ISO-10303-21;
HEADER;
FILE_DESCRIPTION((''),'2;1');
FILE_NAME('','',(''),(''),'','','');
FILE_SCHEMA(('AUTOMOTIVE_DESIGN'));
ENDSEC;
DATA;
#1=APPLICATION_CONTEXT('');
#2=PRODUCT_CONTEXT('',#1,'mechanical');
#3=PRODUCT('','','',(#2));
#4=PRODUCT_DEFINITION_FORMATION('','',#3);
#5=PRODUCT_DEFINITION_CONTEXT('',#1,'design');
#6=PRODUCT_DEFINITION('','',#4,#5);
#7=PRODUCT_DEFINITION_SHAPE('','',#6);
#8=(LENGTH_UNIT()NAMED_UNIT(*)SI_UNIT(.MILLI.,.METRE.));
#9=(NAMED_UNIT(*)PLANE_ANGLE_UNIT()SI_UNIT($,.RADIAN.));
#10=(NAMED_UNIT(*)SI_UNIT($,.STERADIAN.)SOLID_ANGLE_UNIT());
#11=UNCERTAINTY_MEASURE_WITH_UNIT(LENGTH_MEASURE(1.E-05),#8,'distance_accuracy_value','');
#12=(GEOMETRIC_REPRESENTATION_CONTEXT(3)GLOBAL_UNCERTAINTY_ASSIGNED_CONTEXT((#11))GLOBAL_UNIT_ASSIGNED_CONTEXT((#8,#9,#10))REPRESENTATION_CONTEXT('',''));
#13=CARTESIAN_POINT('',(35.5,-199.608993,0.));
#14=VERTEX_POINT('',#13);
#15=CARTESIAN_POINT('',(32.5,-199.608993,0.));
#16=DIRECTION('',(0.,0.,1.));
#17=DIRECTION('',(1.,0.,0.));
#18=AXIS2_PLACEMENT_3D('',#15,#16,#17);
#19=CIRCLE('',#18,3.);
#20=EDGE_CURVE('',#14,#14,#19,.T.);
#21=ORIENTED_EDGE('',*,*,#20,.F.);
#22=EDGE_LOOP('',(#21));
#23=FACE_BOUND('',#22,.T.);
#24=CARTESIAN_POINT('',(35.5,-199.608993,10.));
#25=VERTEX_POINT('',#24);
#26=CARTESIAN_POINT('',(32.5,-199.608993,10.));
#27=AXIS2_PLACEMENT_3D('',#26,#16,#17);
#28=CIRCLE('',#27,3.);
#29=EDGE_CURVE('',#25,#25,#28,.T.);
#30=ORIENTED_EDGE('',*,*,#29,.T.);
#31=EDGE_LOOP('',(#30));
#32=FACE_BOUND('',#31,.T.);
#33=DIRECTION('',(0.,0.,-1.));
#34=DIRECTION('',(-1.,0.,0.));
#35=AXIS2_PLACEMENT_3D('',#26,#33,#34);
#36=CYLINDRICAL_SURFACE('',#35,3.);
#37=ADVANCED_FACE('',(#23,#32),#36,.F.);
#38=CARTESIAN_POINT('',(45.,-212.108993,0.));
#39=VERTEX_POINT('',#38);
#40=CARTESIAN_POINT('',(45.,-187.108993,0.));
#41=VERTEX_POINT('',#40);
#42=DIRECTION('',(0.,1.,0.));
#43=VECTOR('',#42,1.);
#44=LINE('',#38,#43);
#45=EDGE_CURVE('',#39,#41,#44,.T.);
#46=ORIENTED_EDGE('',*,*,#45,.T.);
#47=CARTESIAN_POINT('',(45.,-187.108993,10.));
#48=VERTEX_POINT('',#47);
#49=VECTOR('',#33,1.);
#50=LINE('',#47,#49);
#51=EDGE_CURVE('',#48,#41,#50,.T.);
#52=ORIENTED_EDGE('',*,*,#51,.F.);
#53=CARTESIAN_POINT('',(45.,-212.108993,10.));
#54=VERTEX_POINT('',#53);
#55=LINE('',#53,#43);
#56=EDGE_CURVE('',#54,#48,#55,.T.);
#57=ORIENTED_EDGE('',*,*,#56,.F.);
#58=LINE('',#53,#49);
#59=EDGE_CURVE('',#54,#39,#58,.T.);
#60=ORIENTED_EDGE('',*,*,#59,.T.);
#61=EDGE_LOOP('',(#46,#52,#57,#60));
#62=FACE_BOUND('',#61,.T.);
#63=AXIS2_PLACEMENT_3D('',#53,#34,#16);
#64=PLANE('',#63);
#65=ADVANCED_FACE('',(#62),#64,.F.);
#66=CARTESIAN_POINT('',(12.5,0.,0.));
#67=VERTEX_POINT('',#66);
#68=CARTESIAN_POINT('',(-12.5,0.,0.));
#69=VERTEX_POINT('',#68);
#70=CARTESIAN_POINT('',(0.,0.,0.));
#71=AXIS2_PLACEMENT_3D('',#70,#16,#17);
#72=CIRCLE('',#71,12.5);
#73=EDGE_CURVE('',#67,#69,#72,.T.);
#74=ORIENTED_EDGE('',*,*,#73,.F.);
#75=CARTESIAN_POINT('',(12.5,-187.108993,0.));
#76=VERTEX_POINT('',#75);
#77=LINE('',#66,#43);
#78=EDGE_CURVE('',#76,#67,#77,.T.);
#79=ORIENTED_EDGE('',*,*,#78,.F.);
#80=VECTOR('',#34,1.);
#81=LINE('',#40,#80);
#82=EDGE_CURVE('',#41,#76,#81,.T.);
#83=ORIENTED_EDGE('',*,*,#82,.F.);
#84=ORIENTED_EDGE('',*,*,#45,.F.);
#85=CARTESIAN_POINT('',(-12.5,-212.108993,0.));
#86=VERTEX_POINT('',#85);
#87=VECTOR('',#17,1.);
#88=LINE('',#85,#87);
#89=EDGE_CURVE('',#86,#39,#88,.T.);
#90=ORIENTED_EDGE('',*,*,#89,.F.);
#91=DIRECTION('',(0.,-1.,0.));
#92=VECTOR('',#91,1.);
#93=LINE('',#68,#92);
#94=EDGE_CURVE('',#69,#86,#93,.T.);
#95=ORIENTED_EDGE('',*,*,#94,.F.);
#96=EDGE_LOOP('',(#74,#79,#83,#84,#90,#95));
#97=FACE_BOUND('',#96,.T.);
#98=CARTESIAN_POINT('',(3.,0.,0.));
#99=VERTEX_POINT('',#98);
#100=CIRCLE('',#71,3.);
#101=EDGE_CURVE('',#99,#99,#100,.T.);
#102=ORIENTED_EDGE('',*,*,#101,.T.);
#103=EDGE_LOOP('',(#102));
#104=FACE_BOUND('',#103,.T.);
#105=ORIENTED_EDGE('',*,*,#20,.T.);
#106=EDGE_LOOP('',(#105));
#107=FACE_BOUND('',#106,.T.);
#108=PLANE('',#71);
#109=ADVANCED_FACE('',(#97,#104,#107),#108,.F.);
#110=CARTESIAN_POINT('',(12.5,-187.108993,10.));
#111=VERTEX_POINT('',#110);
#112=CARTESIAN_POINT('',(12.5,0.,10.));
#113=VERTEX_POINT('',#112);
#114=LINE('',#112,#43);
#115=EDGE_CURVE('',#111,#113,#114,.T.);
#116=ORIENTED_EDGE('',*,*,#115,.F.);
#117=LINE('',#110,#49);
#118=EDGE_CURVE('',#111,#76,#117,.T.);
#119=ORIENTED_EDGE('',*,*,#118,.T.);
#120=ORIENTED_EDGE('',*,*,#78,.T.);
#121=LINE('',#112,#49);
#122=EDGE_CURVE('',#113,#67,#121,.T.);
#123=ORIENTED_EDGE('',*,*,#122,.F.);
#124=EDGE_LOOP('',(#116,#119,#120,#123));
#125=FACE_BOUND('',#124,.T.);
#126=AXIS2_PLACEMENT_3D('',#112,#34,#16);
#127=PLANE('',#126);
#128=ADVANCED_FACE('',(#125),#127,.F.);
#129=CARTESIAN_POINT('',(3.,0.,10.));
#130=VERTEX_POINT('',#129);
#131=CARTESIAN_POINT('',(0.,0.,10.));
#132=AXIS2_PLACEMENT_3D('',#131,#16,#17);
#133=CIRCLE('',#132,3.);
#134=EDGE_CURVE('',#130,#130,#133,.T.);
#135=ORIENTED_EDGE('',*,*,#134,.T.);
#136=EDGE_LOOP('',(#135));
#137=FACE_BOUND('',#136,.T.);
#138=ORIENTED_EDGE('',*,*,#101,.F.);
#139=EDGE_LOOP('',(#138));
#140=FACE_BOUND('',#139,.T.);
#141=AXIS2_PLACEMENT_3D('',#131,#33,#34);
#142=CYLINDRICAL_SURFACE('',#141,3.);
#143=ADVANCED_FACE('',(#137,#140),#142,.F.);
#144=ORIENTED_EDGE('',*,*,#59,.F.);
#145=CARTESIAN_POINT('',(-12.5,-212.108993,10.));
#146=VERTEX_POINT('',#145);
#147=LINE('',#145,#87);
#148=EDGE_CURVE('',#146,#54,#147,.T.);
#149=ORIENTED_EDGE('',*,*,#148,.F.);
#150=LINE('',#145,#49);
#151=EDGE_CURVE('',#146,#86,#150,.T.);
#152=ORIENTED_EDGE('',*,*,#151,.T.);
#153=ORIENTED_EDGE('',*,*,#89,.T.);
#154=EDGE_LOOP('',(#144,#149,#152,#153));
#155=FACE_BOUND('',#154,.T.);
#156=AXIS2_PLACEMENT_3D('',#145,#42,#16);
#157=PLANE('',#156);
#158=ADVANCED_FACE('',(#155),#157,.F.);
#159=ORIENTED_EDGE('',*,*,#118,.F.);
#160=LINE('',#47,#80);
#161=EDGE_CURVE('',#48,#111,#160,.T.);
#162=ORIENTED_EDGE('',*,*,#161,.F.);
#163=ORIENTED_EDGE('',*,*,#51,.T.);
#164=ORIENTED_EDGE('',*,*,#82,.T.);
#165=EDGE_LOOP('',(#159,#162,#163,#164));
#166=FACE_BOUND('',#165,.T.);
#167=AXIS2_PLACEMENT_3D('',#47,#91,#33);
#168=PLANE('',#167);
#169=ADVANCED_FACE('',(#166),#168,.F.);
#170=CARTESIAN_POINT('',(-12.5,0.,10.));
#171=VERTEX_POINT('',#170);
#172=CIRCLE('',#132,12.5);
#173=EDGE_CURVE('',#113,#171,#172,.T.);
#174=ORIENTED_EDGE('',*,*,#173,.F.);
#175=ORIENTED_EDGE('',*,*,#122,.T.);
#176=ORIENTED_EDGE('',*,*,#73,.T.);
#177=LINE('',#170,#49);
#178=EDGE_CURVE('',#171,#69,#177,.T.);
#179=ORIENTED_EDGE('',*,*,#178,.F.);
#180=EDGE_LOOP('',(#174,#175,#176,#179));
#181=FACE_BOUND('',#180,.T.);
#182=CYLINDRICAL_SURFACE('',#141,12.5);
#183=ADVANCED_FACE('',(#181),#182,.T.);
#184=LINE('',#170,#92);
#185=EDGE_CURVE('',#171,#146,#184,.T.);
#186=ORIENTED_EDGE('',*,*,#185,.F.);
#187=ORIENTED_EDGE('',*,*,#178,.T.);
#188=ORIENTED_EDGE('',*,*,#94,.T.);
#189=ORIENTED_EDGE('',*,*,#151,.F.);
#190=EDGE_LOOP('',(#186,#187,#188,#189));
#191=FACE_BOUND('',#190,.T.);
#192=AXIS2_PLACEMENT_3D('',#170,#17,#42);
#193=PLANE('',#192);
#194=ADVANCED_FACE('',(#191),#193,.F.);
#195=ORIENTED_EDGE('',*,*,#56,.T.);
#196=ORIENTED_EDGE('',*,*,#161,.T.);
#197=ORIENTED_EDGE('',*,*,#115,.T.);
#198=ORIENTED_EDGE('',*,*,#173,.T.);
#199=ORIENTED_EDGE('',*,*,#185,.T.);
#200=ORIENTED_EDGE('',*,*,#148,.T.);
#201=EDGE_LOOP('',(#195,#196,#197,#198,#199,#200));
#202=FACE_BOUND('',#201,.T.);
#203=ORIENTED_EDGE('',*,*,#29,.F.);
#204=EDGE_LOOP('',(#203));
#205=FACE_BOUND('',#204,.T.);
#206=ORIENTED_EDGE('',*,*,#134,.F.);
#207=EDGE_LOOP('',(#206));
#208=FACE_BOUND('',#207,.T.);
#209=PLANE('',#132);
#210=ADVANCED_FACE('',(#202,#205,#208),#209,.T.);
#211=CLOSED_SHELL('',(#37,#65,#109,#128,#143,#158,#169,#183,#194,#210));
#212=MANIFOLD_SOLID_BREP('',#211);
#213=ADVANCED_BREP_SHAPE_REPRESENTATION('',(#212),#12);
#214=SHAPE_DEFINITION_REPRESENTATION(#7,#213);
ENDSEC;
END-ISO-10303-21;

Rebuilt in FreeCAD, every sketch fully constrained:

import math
import FreeCAD as App
import Part
import Sketcher
from FreeCAD import Vector

doc = App.newDocument("Part")
body = doc.addObject("PartDesign::Body", "Body")

# Sketch on XY plane
sketch1 = body.newObject("Sketcher::SketchObject", "Sketch")
sketch1.AttachmentSupport = (doc.getObject("XY_Plane"), [""])
sketch1.MapMode = "FlatFace"
sketch1.addGeometry(Part.LineSegment(Vector(-12.5, 0, 0), Vector(-12.5, -212.108993, 0)), False)
sketch1.addGeometry(Part.LineSegment(Vector(-12.5, -212.108993, 0), Vector(45, -212.108993, 0)), False)
sketch1.addGeometry(Part.LineSegment(Vector(45, -212.108993, 0), Vector(45, -187.108993, 0)), False)
sketch1.addGeometry(Part.LineSegment(Vector(45, -187.108993, 0), Vector(12.5, -187.108993, 0)), False)
sketch1.addGeometry(Part.LineSegment(Vector(12.5, -187.108993, 0), Vector(12.5, 0, 0)), False)
sketch1.addGeometry(Part.ArcOfCircle(Part.Circle(Vector(0, 0, 0), Vector(0, 0, 1), 12.5), math.radians(0), math.radians(180)), False)
sketch1.addGeometry(Part.Circle(Vector(32.5, -199.608993, 0), Vector(0, 0, 1), 3), False)
sketch1.addGeometry(Part.Circle(Vector(0, 0, 0), Vector(0, 0, 1), 3), False)
sketch1.addConstraint(Sketcher.Constraint("Coincident", 0, 2, 1, 1))
sketch1.addConstraint(Sketcher.Constraint("Coincident", 1, 2, 2, 1))
sketch1.addConstraint(Sketcher.Constraint("Coincident", 2, 2, 3, 1))
sketch1.addConstraint(Sketcher.Constraint("Coincident", 3, 2, 4, 1))
sketch1.addConstraint(Sketcher.Constraint("Tangent", 4, 2, 5, 1))
sketch1.addConstraint(Sketcher.Constraint("Tangent", 5, 2, 0, 1))
sketch1.addConstraint(Sketcher.Constraint("Vertical", 0))
sketch1.addConstraint(Sketcher.Constraint("Horizontal", 1))
sketch1.addConstraint(Sketcher.Constraint("Vertical", 2))
sketch1.addConstraint(Sketcher.Constraint("Horizontal", 3))
sketch1.addConstraint(Sketcher.Constraint("Vertical", 4))
sketch1.addConstraint(Sketcher.Constraint("Coincident", 5, 3, -1, 1))
sketch1.addConstraint(Sketcher.Constraint("Coincident", 7, 3, -1, 1))
sketch1.addConstraint(Sketcher.Constraint("Equal", 6, 7))
sketch1.addConstraint(Sketcher.Constraint("Diameter", 6, 6.0))
sketch1.addConstraint(Sketcher.Constraint("Radius", 5, 12.5))
sketch1.addConstraint(Sketcher.Constraint("DistanceY", 2, 1, 2, 2, 25.0))
sketch1.addConstraint(Sketcher.Constraint("DistanceX", 1, 1, 1, 2, 57.5))
sketch1.addConstraint(Sketcher.Constraint("DistanceX", 0, 2, 6, 3, 45.0))
sketch1.addConstraint(Sketcher.Constraint("DistanceY", 0, 2, 6, 3, 12.5))
sketch1.addConstraint(Sketcher.Constraint("DistanceY", 0, 2, 0, 1, 212.108993))
pad1 = body.newObject("PartDesign::Pad", "Pad")
pad1.Profile = sketch1
pad1.Length = 10

doc.recompute()
